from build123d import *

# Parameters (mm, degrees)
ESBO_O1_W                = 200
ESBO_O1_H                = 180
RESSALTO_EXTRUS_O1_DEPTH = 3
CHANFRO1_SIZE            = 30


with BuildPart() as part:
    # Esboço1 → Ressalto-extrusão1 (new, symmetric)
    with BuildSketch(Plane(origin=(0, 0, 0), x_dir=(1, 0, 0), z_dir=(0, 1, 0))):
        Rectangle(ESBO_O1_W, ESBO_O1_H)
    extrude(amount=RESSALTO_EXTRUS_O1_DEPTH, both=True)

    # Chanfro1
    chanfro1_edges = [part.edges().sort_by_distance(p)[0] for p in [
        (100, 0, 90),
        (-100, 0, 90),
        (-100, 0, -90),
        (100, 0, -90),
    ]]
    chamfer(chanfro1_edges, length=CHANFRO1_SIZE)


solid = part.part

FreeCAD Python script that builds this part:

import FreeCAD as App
import Part
import Sketcher

V = App.Vector


def edges_at(feature, points):
    """Names of the edges that pass closest to the given points."""
    edges = feature.Shape.Edges
    near = lambda p: min(range(len(edges)), key=lambda i: edges[i].distToShape(Part.Vertex(*p))[0])
    return sorted({f"Edge{near(p) + 1}" for p in points})

doc = App.newDocument("Part")
body = doc.addObject("PartDesign::Body", "Body")

# Sketch on XZ plane
sketch1 = doc.addObject("Sketcher::SketchObject", "Sketch")
body.addObject(sketch1)
sketch1.AttachmentSupport = (doc.XZ_Plane, [""])
sketch1.MapMode = "FlatFace"
sketch1.addGeometry([
    Part.LineSegment(V(-100, -90, 0), V(-100, 90, 0)),
    Part.LineSegment(V(-100, 90, 0), V(100, 90, 0)),
    Part.LineSegment(V(100, 90, 0), V(100, -90, 0)),
    Part.LineSegment(V(100, -90, 0), V(-100, -90, 0)),
], False)
sketch1.addConstraint([
    Sketcher.Constraint("Coincident", 0, 2, 1, 1),
    Sketcher.Constraint("Coincident", 1, 2, 2, 1),
    Sketcher.Constraint("Coincident", 2, 2, 3, 1),
    Sketcher.Constraint("Coincident", 3, 2, 0, 1),
    Sketcher.Constraint("Vertical", 0),
    Sketcher.Constraint("Horizontal", 1),
    Sketcher.Constraint("Vertical", 2),
    Sketcher.Constraint("Horizontal", 3),
    Sketcher.Constraint("Symmetric", 0, 2, 2, 2, -1, 1),
    Sketcher.Constraint("DistanceX", 1, 1, 1, 2, 200.0),
    Sketcher.Constraint("DistanceY", 0, 1, 0, 2, 180.0),
])
pad1 = doc.addObject("PartDesign::Pad", "Pad")
body.addObject(pad1)
pad1.Profile = sketch1
pad1.Length = 6
pad1.Midplane = True
doc.recompute()

chamfer = doc.addObject("PartDesign::Chamfer", "Chamfer")
body.addObject(chamfer)
chamfer.Base = (pad1, edges_at(pad1, [
    (100, 0, 90),
    (-100, 0, 90),
    (-100, 0, -90),
    (100, 0, -90),
]))
chamfer.Size = 30

doc.recompute()
